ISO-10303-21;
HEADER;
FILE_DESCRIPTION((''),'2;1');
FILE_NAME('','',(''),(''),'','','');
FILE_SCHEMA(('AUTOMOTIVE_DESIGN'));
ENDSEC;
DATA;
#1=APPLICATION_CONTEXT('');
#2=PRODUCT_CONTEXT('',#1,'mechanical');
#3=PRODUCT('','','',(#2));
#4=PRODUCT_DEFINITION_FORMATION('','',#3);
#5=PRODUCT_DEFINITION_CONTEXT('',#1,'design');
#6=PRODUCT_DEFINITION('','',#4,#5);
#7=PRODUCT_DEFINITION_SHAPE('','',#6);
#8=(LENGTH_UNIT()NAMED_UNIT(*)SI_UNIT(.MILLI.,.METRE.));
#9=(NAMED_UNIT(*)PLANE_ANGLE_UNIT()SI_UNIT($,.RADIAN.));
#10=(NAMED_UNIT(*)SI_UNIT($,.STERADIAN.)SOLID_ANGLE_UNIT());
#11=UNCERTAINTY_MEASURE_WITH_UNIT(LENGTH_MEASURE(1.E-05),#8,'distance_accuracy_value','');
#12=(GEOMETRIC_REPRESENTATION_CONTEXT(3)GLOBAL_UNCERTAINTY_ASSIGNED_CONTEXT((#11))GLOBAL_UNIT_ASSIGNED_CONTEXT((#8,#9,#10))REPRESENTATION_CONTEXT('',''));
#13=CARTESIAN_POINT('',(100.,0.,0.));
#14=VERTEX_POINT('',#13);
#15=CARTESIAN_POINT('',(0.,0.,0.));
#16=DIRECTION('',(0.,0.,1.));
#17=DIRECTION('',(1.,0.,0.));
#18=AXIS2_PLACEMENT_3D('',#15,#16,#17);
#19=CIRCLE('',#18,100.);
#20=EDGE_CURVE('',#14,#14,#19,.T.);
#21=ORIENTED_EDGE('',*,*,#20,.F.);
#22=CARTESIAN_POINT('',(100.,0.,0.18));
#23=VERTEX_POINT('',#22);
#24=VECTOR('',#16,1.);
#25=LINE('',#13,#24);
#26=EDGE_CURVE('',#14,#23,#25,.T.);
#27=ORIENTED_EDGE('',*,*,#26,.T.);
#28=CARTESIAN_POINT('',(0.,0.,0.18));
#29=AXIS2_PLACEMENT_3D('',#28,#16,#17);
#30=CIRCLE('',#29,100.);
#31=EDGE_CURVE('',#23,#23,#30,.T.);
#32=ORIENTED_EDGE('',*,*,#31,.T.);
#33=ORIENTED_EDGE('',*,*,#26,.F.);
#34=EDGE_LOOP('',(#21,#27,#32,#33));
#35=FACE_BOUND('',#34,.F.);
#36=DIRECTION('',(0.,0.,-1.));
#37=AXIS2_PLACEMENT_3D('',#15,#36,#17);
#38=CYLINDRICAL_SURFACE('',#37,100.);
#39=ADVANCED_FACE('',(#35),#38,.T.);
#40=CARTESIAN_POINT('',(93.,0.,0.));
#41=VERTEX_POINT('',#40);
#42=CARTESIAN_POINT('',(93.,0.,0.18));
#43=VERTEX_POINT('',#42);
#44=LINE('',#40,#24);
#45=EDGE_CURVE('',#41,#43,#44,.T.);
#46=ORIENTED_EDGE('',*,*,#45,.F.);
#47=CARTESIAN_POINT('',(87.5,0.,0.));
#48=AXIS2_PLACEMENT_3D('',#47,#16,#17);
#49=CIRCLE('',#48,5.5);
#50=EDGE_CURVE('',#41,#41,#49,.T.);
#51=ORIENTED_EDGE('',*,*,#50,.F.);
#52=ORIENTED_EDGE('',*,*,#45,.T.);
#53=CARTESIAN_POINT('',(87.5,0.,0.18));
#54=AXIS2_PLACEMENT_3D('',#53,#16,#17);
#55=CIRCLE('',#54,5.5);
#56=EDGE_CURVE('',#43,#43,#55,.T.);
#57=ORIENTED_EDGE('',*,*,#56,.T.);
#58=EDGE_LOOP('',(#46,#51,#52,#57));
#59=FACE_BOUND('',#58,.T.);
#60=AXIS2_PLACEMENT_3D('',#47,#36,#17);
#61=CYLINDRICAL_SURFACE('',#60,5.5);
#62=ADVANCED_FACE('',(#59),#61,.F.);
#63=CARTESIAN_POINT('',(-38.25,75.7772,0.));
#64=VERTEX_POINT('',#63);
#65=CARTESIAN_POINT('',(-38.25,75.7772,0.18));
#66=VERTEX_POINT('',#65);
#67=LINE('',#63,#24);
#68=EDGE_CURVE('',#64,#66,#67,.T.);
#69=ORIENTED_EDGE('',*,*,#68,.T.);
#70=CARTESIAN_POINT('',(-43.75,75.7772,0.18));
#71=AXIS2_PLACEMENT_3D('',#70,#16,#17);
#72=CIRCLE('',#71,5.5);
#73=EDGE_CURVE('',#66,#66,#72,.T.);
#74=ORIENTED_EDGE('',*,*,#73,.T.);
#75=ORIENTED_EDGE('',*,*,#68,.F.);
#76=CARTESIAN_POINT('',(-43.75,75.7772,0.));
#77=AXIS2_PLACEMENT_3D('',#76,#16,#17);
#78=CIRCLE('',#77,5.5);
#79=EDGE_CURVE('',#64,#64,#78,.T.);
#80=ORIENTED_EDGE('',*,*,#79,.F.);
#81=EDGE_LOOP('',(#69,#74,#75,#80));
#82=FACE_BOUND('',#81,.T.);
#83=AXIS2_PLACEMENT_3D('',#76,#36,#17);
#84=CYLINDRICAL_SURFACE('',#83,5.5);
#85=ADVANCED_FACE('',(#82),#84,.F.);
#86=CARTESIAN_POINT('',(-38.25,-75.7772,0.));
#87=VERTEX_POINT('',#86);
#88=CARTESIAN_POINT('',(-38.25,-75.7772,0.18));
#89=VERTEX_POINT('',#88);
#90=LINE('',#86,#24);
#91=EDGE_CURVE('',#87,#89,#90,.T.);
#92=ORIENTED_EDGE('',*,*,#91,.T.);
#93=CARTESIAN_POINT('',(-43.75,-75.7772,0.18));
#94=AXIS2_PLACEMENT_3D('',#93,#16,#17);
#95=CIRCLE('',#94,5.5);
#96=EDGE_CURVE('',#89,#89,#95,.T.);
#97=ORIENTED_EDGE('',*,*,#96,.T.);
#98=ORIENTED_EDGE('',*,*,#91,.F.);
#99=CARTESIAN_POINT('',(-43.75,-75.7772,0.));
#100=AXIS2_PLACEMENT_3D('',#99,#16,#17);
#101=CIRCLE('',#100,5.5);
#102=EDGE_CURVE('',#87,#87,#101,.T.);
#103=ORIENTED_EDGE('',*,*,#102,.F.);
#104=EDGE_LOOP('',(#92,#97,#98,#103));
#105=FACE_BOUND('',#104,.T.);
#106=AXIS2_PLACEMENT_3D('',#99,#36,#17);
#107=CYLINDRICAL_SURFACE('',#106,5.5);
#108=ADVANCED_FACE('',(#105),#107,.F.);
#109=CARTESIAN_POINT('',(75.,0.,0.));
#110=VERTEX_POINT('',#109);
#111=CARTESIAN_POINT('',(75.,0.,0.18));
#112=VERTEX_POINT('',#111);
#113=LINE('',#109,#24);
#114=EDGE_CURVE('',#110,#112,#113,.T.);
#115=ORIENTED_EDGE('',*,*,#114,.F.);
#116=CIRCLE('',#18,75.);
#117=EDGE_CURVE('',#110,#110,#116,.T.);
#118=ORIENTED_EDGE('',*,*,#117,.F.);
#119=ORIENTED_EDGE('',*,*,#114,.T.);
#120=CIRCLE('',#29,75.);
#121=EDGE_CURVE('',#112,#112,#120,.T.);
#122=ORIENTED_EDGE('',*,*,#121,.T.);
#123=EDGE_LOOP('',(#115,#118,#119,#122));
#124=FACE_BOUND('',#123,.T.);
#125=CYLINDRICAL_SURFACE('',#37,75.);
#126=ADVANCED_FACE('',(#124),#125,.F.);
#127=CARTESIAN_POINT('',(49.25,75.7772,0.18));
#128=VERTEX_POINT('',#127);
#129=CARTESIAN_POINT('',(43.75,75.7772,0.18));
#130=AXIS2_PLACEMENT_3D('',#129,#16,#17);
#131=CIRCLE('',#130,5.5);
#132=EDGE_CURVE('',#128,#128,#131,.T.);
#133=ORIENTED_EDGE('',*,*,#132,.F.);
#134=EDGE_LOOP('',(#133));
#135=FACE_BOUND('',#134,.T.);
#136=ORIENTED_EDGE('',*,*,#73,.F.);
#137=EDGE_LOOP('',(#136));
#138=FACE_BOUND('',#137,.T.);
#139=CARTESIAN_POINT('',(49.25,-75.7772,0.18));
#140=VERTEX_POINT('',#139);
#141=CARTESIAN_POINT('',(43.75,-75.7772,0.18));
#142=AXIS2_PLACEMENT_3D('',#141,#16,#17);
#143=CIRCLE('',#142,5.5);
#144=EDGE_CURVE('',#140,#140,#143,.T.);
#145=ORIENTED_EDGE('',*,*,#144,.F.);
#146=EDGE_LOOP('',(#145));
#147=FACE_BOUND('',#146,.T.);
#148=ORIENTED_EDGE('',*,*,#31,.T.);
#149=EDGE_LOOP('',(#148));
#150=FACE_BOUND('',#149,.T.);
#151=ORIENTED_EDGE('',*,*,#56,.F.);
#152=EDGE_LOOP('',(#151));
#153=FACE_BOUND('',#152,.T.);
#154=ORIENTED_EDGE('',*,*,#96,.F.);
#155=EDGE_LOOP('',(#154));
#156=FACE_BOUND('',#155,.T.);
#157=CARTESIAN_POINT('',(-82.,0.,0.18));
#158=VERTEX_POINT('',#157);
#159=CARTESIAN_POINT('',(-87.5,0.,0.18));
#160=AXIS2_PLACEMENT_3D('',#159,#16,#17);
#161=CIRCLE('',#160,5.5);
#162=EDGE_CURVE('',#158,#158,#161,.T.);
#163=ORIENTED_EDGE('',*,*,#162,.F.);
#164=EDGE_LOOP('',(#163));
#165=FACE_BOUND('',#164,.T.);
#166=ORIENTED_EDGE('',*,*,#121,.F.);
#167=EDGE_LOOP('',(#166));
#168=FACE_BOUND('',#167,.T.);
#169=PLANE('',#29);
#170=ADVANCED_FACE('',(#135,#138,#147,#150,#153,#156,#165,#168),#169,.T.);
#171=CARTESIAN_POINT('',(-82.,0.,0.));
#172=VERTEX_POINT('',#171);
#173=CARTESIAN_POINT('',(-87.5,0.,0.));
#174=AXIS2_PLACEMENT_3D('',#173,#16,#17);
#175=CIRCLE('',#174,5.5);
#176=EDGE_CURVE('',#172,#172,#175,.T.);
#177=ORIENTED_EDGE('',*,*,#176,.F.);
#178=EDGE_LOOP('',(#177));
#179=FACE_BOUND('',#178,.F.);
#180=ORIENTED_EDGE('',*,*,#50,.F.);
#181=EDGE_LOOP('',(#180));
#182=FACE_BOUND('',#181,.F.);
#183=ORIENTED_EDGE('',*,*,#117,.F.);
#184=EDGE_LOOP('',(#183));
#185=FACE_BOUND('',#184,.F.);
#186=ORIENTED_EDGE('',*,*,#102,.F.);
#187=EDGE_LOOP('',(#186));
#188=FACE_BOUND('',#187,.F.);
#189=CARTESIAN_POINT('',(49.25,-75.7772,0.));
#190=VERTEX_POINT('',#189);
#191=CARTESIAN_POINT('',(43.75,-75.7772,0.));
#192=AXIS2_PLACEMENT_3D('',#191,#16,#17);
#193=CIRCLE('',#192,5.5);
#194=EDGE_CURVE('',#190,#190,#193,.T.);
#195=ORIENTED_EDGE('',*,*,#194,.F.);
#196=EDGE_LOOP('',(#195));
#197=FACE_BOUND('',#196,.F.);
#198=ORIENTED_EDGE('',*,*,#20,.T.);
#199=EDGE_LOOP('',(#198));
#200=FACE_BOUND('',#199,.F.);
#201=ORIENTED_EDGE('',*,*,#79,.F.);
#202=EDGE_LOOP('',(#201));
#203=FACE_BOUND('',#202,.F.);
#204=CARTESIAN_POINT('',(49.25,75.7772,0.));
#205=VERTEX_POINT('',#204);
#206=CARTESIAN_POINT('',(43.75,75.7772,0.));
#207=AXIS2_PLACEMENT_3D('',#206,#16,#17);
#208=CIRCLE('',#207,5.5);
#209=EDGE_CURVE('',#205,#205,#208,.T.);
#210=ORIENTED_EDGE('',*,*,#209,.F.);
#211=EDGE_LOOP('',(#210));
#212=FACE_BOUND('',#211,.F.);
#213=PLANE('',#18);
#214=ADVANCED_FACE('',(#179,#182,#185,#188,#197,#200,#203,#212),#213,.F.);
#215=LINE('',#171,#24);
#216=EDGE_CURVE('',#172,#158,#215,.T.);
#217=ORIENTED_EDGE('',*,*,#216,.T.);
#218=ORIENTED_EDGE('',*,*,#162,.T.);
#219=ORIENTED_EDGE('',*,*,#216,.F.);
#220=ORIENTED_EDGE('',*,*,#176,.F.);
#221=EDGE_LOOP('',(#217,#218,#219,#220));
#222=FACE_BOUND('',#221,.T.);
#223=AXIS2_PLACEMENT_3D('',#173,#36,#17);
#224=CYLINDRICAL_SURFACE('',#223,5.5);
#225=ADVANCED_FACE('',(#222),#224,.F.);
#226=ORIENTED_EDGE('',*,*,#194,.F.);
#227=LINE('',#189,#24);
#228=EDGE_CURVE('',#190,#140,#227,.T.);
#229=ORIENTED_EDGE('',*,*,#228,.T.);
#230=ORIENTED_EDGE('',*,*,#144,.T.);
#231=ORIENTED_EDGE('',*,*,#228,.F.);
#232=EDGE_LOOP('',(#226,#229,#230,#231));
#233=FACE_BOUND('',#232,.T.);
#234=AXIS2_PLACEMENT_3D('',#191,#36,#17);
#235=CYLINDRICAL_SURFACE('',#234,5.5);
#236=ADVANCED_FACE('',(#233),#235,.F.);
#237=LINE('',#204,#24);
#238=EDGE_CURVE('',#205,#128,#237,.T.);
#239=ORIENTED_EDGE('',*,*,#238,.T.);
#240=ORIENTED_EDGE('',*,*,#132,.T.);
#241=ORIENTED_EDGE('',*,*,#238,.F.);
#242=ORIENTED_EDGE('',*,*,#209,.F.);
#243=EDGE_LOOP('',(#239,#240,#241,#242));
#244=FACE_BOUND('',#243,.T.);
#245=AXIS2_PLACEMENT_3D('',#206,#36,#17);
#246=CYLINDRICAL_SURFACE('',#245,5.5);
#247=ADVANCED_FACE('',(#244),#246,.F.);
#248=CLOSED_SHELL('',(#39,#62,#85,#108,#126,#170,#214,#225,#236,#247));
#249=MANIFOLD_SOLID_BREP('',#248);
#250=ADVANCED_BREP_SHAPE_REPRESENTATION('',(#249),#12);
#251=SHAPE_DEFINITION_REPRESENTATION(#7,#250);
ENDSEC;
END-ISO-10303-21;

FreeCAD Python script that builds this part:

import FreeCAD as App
import Part
import Sketcher

doc = App.newDocument("Part")
body = doc.addObject("PartDesign::Body", "Body")

# Sketch on XY plane
sketch1 = doc.addObject("Sketcher::SketchObject", "Sketch")
body.addObject(sketch1)
sketch1.AttachmentSupport = (doc.XY_Plane, [""])
sketch1.MapMode = "FlatFace"
sketch1.addGeometry(Part.Circle(App.Vector(0, 0, 0), App.Vector(0, 0, 1), 100), False)
sketch1.addGeometry(Part.Circle(App.Vector(-44, -76, 0), App.Vector(0, 0, 1), 6), False)
sketch1.addGeometry(Part.Circle(App.Vector(44, -76, 0), App.Vector(0, 0, 1), 6), False)
sketch1.addGeometry(Part.Circle(App.Vector(-88, 0, 0), App.Vector(0, 0, 1), 6), False)
sketch1.addGeometry(Part.Circle(App.Vector(-44, 76, 0), App.Vector(0, 0, 1), 6), False)
sketch1.addGeometry(Part.Circle(App.Vector(0, 0, 0), App.Vector(0, 0, 1), 75), False)
sketch1.addGeometry(Part.Circle(App.Vector(88, 0, 0), App.Vector(0, 0, 1), 6), False)
sketch1.addGeometry(Part.Circle(App.Vector(44, 76, 0), App.Vector(0, 0, 1), 6), False)
sketch1.addConstraint(Sketcher.Constraint("Coincident", 0, 3, -1, 1))
sketch1.addConstraint(Sketcher.Constraint("Coincident", 5, 3, -1, 1))
sketch1.addConstraint(Sketcher.Constraint("Equal", 1, 2))
sketch1.addConstraint(Sketcher.Constraint("Equal", 2, 3))
sketch1.addConstraint(Sketcher.Constraint("Equal", 3, 4))
sketch1.addConstraint(Sketcher.Constraint("Equal", 4, 6))
sketch1.addConstraint(Sketcher.Constraint("Equal", 6, 7))
sketch1.addConstraint(Sketcher.Constraint("Symmetric", 2, 3, 4, 3, -1, 1))
sketch1.addConstraint(Sketcher.Constraint("Symmetric", 3, 3, 6, 3, -1, 1))
sketch1.addConstraint(Sketcher.Constraint("Symmetric", 1, 3, 7, 3, -1, 1))
sketch1.addConstraint(Sketcher.Constraint("Symmetric", 1, 3, 2, 3, -2))
sketch1.addConstraint(Sketcher.Constraint("PointOnObject", 3, 3, -1))
sketch1.addConstraint(Sketcher.Constraint("Diameter", 0, 200.0))
sketch1.addConstraint(Sketcher.Constraint("Diameter", 1, 11.0))
sketch1.addConstraint(Sketcher.Constraint("Diameter", 5, 150.0))
sketch1.addConstraint(Sketcher.Constraint("DistanceX", 3, 3, -1, 1, 87.5))
sketch1.addConstraint(Sketcher.Constraint("DistanceX", 1, 3, 2, 3, 87.5))
sketch1.addConstraint(Sketcher.Constraint("DistanceY", 1, 3, -1, 1, 75.7772))
pad1 = doc.addObject("PartDesign::Pad", "Pad")
body.addObject(pad1)
pad1.Profile = sketch1
pad1.Length = 0.18

doc.recompute()
